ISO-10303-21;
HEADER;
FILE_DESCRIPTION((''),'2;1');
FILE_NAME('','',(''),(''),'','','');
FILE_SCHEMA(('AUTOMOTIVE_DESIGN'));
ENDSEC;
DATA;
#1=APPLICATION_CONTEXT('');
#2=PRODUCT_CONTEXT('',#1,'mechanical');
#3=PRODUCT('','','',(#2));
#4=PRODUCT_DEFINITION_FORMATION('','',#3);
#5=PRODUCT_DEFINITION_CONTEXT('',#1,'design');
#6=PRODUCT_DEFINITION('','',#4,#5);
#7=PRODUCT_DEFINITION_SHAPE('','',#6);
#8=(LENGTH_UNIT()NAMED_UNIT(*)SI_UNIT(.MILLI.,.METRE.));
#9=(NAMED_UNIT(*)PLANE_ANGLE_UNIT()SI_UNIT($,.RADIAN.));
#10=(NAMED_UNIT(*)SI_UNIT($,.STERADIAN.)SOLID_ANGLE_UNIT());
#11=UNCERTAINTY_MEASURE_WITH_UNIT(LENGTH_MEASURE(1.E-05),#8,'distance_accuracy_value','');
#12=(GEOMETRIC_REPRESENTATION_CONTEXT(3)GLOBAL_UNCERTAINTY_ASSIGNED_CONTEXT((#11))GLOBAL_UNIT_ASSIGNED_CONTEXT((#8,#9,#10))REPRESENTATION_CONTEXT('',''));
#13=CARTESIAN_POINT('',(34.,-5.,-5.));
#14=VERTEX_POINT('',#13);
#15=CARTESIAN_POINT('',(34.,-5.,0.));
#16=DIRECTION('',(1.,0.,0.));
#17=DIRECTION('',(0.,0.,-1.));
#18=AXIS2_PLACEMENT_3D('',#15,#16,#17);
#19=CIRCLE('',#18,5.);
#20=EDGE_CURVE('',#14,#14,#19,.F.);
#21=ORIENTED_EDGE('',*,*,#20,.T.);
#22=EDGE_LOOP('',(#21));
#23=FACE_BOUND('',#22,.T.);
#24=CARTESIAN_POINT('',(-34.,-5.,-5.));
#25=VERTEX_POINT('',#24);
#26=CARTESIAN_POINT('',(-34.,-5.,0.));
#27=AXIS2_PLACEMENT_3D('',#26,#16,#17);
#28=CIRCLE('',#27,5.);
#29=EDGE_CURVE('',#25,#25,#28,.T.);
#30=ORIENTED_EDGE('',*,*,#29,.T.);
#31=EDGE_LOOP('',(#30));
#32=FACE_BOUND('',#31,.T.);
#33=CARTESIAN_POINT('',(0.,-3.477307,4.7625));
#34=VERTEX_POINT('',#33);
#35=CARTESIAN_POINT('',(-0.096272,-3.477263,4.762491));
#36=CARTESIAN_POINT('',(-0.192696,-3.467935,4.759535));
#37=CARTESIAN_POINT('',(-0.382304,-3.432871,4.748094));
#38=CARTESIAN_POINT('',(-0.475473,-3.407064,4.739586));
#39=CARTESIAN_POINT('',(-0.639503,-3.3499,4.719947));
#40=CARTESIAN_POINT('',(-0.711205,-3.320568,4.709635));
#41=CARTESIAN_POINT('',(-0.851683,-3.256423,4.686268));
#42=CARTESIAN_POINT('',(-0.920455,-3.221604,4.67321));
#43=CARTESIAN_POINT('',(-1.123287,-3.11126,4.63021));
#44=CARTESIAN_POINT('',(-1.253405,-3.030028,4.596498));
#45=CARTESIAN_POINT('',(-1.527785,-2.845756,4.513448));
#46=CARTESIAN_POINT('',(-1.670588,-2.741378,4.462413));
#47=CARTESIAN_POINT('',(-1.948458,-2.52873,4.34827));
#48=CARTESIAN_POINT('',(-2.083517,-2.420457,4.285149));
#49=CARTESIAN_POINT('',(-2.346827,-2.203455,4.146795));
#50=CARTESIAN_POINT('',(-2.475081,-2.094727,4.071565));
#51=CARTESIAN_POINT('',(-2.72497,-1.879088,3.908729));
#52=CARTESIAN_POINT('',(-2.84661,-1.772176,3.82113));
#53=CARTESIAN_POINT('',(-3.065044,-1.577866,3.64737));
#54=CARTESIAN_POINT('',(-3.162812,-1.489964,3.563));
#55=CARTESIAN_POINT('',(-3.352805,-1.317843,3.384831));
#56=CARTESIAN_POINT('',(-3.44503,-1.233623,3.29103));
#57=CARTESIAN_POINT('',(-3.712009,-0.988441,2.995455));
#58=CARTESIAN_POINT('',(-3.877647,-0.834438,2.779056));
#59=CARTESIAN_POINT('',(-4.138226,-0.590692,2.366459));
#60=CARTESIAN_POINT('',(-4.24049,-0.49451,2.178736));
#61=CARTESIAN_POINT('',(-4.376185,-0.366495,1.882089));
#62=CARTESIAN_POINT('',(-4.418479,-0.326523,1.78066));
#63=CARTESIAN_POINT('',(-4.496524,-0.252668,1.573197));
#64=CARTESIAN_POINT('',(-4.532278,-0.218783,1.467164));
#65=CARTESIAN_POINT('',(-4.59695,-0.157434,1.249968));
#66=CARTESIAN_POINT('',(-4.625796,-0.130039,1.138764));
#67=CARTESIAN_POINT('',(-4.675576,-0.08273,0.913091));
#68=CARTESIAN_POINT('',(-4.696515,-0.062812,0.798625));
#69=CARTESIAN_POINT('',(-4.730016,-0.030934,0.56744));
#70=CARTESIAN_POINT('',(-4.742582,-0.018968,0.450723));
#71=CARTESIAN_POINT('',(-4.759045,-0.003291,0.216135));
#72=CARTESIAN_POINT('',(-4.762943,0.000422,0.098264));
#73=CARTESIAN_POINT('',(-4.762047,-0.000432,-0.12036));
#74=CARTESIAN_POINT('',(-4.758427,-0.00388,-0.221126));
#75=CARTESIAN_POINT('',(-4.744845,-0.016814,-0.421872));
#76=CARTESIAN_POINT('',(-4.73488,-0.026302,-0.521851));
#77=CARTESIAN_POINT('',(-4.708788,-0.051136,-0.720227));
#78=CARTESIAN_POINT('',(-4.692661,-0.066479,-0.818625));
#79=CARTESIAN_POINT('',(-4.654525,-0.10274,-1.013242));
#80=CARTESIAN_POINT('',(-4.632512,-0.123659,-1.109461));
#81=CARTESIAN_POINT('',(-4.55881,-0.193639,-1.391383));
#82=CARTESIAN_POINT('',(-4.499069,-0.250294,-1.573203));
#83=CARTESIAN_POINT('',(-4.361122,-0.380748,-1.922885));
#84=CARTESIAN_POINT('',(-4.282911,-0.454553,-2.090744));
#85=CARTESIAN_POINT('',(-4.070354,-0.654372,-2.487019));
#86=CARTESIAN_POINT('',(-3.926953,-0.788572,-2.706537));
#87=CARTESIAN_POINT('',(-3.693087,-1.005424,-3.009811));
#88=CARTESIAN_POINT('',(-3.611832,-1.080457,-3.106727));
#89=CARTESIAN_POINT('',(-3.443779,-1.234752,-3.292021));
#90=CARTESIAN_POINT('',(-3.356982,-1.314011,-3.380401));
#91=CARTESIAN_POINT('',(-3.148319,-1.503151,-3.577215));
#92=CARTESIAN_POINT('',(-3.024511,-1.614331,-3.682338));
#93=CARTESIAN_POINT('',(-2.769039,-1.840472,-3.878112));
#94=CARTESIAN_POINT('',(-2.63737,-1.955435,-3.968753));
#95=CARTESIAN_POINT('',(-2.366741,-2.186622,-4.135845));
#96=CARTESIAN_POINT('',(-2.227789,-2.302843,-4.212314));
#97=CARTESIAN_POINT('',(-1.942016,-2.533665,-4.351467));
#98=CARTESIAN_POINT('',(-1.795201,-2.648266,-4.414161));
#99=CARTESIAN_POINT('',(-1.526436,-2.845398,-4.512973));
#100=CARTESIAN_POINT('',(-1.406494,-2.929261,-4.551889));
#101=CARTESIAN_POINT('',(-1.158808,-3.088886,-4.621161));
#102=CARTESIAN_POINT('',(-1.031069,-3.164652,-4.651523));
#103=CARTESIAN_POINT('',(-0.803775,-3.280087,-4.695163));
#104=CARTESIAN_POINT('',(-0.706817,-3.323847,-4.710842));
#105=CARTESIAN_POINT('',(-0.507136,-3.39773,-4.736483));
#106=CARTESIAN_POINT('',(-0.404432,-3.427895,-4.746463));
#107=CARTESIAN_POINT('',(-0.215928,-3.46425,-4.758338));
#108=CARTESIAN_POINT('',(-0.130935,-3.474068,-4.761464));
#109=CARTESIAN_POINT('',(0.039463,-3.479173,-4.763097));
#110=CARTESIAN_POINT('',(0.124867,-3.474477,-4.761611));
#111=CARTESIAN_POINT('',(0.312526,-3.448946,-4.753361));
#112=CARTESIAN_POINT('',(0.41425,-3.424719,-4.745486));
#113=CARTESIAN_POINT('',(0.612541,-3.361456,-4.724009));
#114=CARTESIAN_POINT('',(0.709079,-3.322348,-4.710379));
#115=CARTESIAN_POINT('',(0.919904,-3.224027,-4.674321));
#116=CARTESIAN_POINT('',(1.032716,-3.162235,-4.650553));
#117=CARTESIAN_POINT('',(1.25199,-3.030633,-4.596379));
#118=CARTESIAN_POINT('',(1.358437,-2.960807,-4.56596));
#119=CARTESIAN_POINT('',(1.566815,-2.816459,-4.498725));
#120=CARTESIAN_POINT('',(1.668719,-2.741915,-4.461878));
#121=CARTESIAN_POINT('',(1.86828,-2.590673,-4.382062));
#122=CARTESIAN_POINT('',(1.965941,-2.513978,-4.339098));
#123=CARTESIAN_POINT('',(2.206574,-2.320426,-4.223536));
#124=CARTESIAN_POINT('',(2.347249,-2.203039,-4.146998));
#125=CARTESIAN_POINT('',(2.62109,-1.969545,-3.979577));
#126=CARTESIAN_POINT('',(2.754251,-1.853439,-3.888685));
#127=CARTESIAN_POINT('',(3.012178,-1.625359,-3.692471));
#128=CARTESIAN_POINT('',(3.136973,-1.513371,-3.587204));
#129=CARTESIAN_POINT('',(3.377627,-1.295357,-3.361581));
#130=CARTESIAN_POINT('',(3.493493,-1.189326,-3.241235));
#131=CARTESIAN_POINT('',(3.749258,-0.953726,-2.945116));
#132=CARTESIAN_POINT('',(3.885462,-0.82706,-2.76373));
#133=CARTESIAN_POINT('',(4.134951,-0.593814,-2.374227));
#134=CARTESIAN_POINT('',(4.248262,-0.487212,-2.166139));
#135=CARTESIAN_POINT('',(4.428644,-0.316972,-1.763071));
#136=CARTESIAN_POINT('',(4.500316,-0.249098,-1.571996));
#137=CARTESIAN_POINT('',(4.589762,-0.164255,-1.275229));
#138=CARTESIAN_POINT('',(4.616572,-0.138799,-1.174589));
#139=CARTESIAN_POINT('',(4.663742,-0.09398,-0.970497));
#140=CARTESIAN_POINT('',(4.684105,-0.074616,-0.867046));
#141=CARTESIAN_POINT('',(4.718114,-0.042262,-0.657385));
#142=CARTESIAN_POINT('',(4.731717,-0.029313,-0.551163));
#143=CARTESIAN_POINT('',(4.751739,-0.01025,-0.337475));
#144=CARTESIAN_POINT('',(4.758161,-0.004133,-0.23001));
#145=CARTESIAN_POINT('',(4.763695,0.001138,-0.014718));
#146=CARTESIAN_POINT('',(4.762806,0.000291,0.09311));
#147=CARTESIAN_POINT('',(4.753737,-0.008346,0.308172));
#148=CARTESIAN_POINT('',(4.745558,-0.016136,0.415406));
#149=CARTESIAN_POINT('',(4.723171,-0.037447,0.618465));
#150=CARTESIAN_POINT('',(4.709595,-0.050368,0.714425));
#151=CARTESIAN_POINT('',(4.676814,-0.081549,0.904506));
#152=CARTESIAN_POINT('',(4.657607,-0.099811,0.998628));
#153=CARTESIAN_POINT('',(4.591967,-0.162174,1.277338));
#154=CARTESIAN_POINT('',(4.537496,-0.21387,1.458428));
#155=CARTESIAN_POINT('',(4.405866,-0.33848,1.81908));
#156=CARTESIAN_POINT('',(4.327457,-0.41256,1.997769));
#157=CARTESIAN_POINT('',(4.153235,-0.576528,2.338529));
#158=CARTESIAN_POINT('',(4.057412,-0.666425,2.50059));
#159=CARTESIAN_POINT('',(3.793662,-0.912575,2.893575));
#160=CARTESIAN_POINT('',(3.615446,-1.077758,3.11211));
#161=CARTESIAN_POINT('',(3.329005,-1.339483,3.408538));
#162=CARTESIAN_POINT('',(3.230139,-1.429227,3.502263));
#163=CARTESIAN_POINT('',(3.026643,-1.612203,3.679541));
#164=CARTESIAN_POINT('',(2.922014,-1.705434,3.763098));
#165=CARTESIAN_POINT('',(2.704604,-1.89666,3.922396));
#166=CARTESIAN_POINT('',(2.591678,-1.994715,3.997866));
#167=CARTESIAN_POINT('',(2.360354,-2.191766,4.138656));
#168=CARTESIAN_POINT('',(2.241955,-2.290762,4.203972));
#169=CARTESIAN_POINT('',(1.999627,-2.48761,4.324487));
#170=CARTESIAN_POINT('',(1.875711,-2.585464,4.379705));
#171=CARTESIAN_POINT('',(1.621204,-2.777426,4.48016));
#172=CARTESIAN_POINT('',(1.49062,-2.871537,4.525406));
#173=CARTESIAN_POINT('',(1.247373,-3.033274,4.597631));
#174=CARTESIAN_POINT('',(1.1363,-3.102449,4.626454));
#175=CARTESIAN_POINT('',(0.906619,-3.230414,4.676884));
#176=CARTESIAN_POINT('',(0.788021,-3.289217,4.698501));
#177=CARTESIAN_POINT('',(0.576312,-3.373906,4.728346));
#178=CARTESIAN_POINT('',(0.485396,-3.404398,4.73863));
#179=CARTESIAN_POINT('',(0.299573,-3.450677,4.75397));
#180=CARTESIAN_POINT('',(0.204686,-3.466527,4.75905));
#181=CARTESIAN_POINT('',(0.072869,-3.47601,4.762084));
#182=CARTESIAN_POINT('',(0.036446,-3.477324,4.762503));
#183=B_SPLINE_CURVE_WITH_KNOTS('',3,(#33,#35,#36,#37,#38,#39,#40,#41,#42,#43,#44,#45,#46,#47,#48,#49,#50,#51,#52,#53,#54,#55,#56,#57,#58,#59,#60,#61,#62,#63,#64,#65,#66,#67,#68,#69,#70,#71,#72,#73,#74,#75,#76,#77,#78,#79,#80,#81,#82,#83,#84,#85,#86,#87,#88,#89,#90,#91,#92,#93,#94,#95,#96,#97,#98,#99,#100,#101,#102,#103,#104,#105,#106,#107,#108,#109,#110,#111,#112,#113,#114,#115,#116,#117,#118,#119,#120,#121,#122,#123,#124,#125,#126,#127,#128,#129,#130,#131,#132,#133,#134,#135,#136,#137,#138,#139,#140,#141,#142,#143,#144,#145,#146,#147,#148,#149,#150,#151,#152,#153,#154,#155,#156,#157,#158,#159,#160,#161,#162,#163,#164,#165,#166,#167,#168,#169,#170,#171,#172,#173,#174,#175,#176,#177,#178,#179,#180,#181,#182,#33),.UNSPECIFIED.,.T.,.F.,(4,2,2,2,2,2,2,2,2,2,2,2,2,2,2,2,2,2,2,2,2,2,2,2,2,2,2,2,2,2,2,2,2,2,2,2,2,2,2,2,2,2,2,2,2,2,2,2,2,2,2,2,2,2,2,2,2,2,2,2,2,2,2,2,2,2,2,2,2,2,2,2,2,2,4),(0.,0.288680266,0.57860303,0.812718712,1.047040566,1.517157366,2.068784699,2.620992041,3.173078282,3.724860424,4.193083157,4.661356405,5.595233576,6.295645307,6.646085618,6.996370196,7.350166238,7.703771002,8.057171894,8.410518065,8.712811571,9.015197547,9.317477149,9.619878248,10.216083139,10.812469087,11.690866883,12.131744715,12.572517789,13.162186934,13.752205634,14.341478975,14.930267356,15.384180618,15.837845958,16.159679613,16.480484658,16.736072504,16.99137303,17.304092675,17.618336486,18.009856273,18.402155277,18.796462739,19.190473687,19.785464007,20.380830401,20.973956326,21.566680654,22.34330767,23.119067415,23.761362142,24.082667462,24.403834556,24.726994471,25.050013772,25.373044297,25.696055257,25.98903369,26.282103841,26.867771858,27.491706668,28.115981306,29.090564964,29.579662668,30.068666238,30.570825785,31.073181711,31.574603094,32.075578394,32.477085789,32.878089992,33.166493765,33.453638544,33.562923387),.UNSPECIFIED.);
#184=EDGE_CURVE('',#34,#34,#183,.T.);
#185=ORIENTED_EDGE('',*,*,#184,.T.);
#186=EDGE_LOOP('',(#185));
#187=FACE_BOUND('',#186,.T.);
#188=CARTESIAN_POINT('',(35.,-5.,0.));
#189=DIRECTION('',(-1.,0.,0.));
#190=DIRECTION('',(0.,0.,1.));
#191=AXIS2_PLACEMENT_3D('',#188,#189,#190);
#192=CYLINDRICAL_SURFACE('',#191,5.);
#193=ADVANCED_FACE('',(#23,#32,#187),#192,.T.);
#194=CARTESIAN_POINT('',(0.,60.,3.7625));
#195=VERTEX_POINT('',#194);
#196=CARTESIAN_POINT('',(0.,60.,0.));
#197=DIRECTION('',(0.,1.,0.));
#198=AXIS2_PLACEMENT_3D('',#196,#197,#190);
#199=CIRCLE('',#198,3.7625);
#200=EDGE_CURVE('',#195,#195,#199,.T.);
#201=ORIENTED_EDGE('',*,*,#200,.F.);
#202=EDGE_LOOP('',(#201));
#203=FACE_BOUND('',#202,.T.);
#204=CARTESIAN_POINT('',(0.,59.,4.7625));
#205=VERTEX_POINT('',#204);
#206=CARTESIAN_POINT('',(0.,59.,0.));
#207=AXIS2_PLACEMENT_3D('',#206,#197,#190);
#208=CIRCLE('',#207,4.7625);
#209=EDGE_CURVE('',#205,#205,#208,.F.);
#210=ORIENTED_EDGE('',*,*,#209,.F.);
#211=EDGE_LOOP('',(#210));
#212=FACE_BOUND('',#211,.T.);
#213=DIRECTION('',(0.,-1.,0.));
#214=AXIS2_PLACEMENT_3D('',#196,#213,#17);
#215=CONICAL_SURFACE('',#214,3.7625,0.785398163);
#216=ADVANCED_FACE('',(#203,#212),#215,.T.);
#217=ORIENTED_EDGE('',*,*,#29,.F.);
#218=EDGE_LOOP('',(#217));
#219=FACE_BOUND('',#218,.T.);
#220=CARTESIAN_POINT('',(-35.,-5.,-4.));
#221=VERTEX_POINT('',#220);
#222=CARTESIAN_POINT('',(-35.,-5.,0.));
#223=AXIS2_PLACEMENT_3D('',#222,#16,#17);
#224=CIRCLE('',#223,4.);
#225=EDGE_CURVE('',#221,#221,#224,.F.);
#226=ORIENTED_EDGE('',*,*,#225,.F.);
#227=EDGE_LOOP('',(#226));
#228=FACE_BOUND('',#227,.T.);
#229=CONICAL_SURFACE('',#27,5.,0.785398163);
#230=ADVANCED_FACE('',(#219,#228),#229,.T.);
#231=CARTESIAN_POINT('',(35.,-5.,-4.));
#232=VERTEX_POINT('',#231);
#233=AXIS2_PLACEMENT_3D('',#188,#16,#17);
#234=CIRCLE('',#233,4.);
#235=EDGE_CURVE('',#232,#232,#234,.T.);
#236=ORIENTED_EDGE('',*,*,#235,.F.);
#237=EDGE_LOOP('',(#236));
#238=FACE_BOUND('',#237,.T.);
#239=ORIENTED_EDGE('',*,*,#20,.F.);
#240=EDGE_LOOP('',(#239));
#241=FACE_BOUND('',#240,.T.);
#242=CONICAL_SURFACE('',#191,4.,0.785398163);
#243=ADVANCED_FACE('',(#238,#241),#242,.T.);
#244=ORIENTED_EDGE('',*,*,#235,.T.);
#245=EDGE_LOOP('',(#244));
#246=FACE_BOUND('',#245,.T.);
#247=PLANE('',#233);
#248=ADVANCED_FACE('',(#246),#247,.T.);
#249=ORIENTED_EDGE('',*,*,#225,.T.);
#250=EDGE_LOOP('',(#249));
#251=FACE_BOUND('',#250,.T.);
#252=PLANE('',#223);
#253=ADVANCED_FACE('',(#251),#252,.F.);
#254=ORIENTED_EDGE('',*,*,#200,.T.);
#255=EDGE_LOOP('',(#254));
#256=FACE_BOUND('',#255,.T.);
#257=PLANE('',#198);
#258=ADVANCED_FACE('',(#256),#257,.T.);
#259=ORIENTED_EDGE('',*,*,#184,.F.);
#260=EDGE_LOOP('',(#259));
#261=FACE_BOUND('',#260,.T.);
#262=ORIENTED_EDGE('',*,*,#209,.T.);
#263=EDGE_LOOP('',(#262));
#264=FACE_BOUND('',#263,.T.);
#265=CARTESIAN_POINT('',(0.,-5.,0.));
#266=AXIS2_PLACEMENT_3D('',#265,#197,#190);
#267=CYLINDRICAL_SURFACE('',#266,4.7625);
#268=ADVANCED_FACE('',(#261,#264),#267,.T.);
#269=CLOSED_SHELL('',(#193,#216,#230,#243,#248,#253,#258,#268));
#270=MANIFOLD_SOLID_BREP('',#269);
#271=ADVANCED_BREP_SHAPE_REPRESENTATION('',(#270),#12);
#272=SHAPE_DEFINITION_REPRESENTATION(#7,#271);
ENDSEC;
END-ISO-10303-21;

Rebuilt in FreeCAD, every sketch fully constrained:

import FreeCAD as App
import Part
import Sketcher
from FreeCAD import Vector
Q = App.Units.Quantity


def edges_at(feature, points):
    """Names of the edges that pass closest to the given points."""
    edges = feature.Shape.Edges
    near = lambda p: min(range(len(edges)), key=lambda i: edges[i].distToShape(Part.Vertex(*p))[0])
    return sorted({f"Edge{near(p) + 1}" for p in points})

doc = App.newDocument("Part")
params = doc.addObject("Spreadsheet::Sheet", "Params")
for row, (alias, value) in enumerate([
    ("sketch1_diameter", "10 mm"),
    ("pad1_length", "70 mm"),
    ("pad2_length", "60 mm"),
    ("pad2_length2", "5 mm"),
    ("chamfer_size", "1 mm"),
], start=1):
    params.set(f"A{row}", alias)
    params.set(f"B{row}", "=" + value)
    params.setAlias(f"B{row}", alias)

body = doc.addObject("PartDesign::Body", "Body")

sketch1 = body.newObject("Sketcher::SketchObject", "Sketch")
sketch1.AttachmentSupport = (doc.getObject("YZ_Plane"), [""])
sketch1.MapMode = "FlatFace"
sketch1.addGeometry(Part.Circle(Vector(-5, 0, 0), Vector(0, 0, 1), 5), False)
sketch1.addConstraint(Sketcher.Constraint("PointOnObject", 0, 3, -1))
sketch1.addConstraint(Sketcher.Constraint("Diameter", 0, Q("10 mm")))
sketch1.addConstraint(Sketcher.Constraint("DistanceX", 0, 3, -1, 1, Q("5 mm")))
sketch1.setExpression("Constraints[1]", "Params.sketch1_diameter")
pad1 = body.newObject("PartDesign::Pad", "Pad")
pad1.Profile = sketch1
pad1.setExpression("Length", "Params.pad1_length")
pad1.Midplane = True

sketch2 = body.newObject("Sketcher::SketchObject", "Sketch001")
sketch2.AttachmentSupport = (doc.getObject("XZ_Plane"), [""])
sketch2.MapMode = "FlatFace"
sketch2.addGeometry(Part.Circle(Vector(0, 0, 0), Vector(0, 0, 1), 4.7625), False)
sketch2.addConstraint(Sketcher.Constraint("Coincident", 0, 3, -1, 1))
sketch2.addConstraint(Sketcher.Constraint("Diameter", 0, Q("9.525 mm")))
pad2 = body.newObject("PartDesign::Pad", "Pad001")
pad2.Profile = sketch2
pad2.Type = "TwoLengths"
pad2.setExpression("Length", "Params.pad2_length")
pad2.setExpression("Length2", "Params.pad2_length2")
pad2.Reversed = True
doc.recompute()

chamfer = body.newObject("PartDesign::Chamfer", "Chamfer")
chamfer.Base = (pad2, edges_at(pad2, [(-35, -5, 5), (35, -5, 5), (0, 60, -4.763)]))
chamfer.setExpression("Size", "Params.chamfer_size")

doc.recompute()
